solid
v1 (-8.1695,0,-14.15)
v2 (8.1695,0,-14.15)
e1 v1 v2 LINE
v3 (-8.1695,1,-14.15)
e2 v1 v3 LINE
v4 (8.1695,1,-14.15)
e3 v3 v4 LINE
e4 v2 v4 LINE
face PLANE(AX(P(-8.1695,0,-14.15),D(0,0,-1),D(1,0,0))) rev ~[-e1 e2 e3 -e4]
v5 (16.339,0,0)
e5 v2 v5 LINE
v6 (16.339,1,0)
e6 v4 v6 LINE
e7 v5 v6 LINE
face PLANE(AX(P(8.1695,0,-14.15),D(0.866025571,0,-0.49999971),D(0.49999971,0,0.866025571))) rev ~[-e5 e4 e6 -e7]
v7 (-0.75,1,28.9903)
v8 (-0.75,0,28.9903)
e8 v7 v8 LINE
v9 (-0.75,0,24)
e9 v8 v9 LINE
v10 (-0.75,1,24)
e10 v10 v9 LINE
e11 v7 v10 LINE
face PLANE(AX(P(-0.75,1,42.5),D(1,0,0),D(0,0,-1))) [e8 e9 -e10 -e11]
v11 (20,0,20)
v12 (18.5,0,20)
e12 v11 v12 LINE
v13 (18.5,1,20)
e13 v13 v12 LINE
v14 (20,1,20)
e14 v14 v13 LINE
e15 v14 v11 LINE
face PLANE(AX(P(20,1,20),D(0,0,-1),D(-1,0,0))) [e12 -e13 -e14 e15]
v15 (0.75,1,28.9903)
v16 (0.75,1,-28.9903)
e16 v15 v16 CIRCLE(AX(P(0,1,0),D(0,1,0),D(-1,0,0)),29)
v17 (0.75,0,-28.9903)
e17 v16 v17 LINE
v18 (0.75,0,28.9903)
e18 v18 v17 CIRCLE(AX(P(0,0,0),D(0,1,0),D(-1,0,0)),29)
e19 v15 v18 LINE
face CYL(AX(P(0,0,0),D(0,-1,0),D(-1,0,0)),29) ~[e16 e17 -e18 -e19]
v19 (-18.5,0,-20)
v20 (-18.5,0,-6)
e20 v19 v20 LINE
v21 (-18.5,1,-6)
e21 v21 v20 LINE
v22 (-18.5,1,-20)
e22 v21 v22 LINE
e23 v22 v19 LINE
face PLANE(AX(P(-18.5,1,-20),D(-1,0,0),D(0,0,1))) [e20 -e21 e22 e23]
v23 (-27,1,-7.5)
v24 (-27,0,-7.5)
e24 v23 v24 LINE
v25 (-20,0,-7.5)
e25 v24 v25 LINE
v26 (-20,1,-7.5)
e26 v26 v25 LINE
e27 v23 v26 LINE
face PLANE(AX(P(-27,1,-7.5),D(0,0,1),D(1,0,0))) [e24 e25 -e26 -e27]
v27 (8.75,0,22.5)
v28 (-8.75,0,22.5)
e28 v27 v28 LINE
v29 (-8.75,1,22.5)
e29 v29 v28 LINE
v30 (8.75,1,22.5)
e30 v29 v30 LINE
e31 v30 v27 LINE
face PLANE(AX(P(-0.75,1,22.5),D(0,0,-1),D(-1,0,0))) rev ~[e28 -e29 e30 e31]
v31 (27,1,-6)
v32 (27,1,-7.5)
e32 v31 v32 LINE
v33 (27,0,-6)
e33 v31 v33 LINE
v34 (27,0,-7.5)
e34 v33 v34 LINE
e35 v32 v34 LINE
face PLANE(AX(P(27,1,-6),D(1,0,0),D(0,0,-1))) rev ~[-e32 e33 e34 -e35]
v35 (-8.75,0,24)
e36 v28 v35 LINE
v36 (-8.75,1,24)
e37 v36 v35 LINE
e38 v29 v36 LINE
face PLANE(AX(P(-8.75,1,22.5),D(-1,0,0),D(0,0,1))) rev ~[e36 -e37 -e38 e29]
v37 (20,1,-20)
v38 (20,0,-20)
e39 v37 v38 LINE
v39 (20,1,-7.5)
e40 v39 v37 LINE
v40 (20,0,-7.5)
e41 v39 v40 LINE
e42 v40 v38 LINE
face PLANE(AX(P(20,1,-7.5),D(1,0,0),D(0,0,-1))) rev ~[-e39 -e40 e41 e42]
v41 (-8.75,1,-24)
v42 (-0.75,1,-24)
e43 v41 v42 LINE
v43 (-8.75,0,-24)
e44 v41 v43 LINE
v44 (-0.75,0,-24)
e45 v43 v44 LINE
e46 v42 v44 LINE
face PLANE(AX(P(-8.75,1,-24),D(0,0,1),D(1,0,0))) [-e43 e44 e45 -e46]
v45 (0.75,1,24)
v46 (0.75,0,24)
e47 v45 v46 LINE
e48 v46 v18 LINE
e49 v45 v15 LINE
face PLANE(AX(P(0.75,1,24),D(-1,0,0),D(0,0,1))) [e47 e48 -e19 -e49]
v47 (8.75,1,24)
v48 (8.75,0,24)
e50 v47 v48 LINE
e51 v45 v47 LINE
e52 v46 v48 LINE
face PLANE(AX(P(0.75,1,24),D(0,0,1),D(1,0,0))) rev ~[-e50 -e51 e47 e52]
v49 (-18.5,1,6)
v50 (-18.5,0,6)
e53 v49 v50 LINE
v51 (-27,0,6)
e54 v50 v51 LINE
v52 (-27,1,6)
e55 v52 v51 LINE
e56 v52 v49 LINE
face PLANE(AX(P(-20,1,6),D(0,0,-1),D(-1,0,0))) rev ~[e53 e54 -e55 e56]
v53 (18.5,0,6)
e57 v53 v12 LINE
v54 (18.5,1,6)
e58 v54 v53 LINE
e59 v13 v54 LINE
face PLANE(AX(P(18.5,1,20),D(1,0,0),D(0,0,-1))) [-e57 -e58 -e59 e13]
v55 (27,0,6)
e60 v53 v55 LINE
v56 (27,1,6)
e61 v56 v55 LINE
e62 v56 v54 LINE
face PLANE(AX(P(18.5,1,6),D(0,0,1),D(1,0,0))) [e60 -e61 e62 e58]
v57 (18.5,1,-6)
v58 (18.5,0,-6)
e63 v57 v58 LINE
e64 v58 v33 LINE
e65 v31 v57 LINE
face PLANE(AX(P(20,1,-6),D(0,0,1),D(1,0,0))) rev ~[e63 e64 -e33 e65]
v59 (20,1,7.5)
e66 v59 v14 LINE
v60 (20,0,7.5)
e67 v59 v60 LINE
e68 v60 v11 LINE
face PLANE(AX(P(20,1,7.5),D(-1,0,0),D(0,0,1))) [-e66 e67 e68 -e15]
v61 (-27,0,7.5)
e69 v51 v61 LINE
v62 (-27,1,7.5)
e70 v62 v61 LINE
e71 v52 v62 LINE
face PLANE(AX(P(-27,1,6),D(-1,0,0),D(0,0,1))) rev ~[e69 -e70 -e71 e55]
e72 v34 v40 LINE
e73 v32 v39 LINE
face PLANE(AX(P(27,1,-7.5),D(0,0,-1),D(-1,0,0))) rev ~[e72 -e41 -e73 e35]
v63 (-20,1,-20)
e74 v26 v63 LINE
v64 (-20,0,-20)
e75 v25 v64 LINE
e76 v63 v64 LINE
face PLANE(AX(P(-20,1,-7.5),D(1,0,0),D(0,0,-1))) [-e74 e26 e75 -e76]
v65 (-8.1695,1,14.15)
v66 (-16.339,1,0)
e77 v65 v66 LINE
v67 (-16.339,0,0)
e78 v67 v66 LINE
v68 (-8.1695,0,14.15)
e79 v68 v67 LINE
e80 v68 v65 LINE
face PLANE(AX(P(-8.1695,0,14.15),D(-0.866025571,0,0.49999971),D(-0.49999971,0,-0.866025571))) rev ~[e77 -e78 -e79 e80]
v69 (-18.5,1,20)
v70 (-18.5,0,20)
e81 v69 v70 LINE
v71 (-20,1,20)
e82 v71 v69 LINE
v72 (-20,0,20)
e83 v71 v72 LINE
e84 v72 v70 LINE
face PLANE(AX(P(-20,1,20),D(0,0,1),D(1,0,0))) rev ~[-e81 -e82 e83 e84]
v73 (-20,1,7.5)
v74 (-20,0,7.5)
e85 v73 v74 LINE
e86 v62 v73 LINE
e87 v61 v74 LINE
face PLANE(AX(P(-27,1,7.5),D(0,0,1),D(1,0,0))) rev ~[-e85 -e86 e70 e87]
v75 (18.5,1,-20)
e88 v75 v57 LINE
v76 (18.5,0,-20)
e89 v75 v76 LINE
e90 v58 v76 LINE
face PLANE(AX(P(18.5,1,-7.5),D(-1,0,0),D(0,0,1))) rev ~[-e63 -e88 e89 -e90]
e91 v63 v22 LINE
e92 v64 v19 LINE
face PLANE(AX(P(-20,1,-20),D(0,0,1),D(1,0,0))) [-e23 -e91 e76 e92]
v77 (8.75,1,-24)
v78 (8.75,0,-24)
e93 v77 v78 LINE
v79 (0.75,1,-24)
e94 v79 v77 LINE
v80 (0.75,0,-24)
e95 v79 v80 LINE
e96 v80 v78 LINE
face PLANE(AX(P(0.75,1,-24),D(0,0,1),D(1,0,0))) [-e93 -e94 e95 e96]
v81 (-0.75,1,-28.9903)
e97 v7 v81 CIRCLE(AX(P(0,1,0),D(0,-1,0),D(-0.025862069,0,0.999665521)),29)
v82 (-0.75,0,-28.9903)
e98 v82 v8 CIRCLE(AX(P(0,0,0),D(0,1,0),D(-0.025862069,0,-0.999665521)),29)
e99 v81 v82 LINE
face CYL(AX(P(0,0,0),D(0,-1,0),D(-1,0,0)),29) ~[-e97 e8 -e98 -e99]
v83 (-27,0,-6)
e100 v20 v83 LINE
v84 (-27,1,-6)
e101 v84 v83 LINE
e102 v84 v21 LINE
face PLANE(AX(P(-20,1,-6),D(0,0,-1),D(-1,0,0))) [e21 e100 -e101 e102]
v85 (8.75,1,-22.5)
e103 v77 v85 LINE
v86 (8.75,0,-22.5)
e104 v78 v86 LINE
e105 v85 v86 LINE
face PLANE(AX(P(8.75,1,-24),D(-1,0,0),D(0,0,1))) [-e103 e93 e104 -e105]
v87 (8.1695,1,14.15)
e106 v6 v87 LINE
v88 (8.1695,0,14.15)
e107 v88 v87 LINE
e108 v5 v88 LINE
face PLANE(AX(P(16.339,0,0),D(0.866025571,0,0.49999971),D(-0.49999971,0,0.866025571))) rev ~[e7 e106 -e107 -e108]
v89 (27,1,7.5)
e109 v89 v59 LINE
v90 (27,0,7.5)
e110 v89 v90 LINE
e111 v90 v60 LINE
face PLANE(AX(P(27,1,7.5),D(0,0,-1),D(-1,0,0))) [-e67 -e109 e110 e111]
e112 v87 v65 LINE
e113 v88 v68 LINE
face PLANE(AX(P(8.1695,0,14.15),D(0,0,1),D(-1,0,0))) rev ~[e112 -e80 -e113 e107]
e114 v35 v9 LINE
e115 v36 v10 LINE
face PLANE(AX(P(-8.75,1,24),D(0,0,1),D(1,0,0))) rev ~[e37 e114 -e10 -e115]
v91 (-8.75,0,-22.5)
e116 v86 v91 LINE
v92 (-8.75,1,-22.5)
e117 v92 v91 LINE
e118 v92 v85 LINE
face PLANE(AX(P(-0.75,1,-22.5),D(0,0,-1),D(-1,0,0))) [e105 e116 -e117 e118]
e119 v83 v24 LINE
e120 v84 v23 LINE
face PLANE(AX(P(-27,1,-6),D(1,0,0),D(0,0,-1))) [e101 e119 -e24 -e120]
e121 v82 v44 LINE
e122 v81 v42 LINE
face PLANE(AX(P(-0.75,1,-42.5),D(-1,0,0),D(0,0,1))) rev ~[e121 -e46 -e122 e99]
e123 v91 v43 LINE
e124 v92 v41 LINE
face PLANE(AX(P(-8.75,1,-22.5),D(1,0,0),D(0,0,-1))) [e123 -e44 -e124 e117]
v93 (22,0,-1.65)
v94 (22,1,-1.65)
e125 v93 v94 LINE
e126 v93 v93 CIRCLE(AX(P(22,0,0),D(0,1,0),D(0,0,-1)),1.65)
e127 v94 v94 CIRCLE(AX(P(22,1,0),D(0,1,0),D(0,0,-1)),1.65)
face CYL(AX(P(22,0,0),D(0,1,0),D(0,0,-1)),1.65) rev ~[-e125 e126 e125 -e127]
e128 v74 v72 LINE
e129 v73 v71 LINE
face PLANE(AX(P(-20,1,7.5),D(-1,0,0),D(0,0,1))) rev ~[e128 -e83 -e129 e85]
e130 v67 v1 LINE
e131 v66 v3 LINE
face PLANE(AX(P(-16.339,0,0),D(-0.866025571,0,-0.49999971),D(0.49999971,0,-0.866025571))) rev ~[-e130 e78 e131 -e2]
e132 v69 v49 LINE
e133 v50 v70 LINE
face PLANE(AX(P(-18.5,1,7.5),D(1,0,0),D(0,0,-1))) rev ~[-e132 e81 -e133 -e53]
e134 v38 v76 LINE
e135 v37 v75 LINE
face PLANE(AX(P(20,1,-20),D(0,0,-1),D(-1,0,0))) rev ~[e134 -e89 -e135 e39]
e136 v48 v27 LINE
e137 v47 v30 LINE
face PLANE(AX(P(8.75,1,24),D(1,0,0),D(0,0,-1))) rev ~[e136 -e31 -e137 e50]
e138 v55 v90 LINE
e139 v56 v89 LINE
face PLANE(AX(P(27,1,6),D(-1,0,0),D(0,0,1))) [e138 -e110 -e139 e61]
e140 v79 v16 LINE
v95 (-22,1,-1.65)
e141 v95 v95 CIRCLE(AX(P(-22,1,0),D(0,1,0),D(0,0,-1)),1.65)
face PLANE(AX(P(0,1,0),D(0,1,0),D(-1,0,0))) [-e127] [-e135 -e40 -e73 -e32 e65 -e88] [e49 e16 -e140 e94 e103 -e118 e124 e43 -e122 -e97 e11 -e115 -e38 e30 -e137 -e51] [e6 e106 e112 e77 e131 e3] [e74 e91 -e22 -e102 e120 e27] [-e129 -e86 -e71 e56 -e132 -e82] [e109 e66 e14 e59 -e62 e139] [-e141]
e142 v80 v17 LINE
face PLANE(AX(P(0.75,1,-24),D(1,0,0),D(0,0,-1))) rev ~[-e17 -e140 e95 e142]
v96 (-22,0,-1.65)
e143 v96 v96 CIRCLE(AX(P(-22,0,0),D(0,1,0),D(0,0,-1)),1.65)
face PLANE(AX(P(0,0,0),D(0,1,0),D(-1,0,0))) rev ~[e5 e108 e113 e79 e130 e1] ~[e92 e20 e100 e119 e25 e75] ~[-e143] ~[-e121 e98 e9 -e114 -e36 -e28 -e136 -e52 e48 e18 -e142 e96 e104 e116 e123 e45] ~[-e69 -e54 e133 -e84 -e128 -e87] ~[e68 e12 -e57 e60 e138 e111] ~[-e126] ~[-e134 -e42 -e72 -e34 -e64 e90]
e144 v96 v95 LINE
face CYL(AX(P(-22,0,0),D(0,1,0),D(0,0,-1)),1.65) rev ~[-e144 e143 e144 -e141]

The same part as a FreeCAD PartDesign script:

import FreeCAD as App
import Part
import Sketcher

V = App.Vector
Q = App.Units.Quantity

doc = App.newDocument("Part")
body = doc.addObject("PartDesign::Body", "Body")

sketch1 = body.newObject("Sketcher::SketchObject", "Sketch")
sketch1.AttachmentSupport = (doc.getObject("XZ_Plane"), [""])
sketch1.MapMode = "FlatFace"
sketch1.addGeometry([
    Part.Circle(V(0, 0, 0), V(0, 0, 1), 29),
    Part.LineSegment(V(-8, -14, 0), V(8, -14, 0)),
    Part.LineSegment(V(8, -14, 0), V(16, 0, 0)),
    Part.LineSegment(V(16, 0, 0), V(8, 14, 0)),
    Part.LineSegment(V(8, 14, 0), V(-8, 14, 0)),
    Part.LineSegment(V(-8, 14, 0), V(-16, 0, 0)),
    Part.LineSegment(V(-16, 0, 0), V(-8, -14, 0)),
], False)
sketch1.addConstraint([
    Sketcher.Constraint("Coincident", 1, 2, 2, 1),
    Sketcher.Constraint("Coincident", 2, 2, 3, 1),
    Sketcher.Constraint("Coincident", 3, 2, 4, 1),
    Sketcher.Constraint("Coincident", 4, 2, 5, 1),
    Sketcher.Constraint("Coincident", 5, 2, 6, 1),
    Sketcher.Constraint("Coincident", 6, 2, 1, 1),
    Sketcher.Constraint("Horizontal", 1),
    Sketcher.Constraint("Horizontal", 4),
    Sketcher.Constraint("Coincident", 0, 3, -1, 1),
    Sketcher.Constraint("Symmetric", 1, 2, 4, 2, -1, 1),
    Sketcher.Constraint("Symmetric", 2, 2, 5, 2, -1, 1),
    Sketcher.Constraint("PointOnObject", 2, 2, -1),
    Sketcher.Constraint("Parallel", 3, 6),
    Sketcher.Constraint("Vertical", 1, 2, 3, 2),
    Sketcher.Constraint("Diameter", 0, Q("58 mm")),
    Sketcher.Constraint("DistanceY", 1, 2, 3, 2, Q("28.3 mm")),
    Sketcher.Constraint("Angle", 2, Q("60 deg")),
    Sketcher.Constraint("DistanceX", 1, 1, 1, 2, Q("16.339 mm")),
])
pad1 = body.newObject("PartDesign::Pad", "Pad")
pad1.Profile = sketch1
pad1.Length = 1
pad1.Reversed = True

sketch2 = body.newObject("Sketcher::SketchObject", "Sketch001")
sketch2.AttachmentSupport = (doc.getObject("XZ_Plane"), [""])
sketch2.MapMode = "FlatFace"
sketch2.addGeometry([
    Part.Circle(V(-22, 0, 0), V(0, 0, 1), 1.6),
    Part.Circle(V(22, 0, 0), V(0, 0, 1), 1.6),
], False)
sketch2.addConstraint([
    Sketcher.Constraint("Equal", 0, 1),
    Sketcher.Constraint("Symmetric", 0, 3, 1, 3, -1, 1),
    Sketcher.Constraint("PointOnObject", 0, 3, -1),
    Sketcher.Constraint("Diameter", 0, Q("3.3 mm")),
    Sketcher.Constraint("DistanceX", 0, 3, -1, 1, Q("22 mm")),
])
doc.recompute()
hole = body.newObject("PartDesign::Hole", "Hole")
hole.Profile = sketch2
hole.ThreadType = "None"
hole.Diameter = 3.3
hole.DepthType = "ThroughAll"

sketch3 = body.newObject("Sketcher::SketchObject", "Sketch002")
sketch3.AttachmentSupport = (doc.getObject("XZ_Plane"), [""])
sketch3.MapMode = "FlatFace"
sketch3.AttachmentOffset = App.Placement(V(0, 0, -1), App.Rotation())
sketch3.addGeometry([
    Part.LineSegment(V(-0.8, -24, 0), V(-8.8, -24, 0)),
    Part.LineSegment(V(-8.8, -24, 0), V(-8.8, -22.5, 0)),
    Part.LineSegment(V(-8.8, -22.5, 0), V(8.8, -22.5, 0)),
    Part.LineSegment(V(8.8, -22.5, 0), V(8.8, -24, 0)),
    Part.LineSegment(V(8.8, -24, 0), V(0.8, -24, 0)),
    Part.LineSegment(V(0.8, -24, 0), V(0.8, -42.5, 0)),
    Part.LineSegment(V(0.8, -42.5, 0), V(-0.8, -42.5, 0)),
    Part.LineSegment(V(-0.8, -42.5, 0), V(-0.8, -24, 0)),
    Part.LineSegment(V(-8.8, 22.5, 0), V(-8.8, 24, 0)),
    Part.LineSegment(V(-8.8, 24, 0), V(-0.8, 24, 0)),
    Part.LineSegment(V(-0.8, 24, 0), V(-0.8, 42.5, 0)),
    Part.LineSegment(V(-0.8, 42.5, 0), V(0.8, 42.5, 0)),
    Part.LineSegment(V(0.8, 42.5, 0), V(0.8, 24, 0)),
    Part.LineSegment(V(0.8, 24, 0), V(8.8, 24, 0)),
    Part.LineSegment(V(8.8, 24, 0), V(8.8, 22.5, 0)),
    Part.LineSegment(V(8.8, 22.5, 0), V(-8.8, 22.5, 0)),
    Part.LineSegment(V(-20, -7.5, 0), V(-27, -7.5, 0)),
    Part.LineSegment(V(-27, -7.5, 0), V(-27, -6, 0)),
    Part.LineSegment(V(-27, -6, 0), V(-18.5, -6, 0)),
    Part.LineSegment(V(-18.5, -6, 0), V(-18.5, -20, 0)),
    Part.LineSegment(V(-18.5, -20, 0), V(-20, -20, 0)),
    Part.LineSegment(V(-20, -20, 0), V(-20, -7.5, 0)),
    Part.LineSegment(V(27, -6, 0), V(27, -7.5, 0)),
    Part.LineSegment(V(27, -7.5, 0), V(20, -7.5, 0)),
    Part.LineSegment(V(20, -7.5, 0), V(20, -20, 0)),
    Part.LineSegment(V(20, -20, 0), V(18.5, -20, 0)),
    Part.LineSegment(V(18.5, -20, 0), V(18.5, -6, 0)),
    Part.LineSegment(V(18.5, -6, 0), V(27, -6, 0)),
    Part.LineSegment(V(-27, 6, 0), V(-27, 7.5, 0)),
    Part.LineSegment(V(-27, 7.5, 0), V(-20, 7.5, 0)),
    Part.LineSegment(V(-20, 7.5, 0), V(-20, 20, 0)),
    Part.LineSegment(V(-20, 20, 0), V(-18.5, 20, 0)),
    Part.LineSegment(V(-18.5, 20, 0), V(-18.5, 6, 0)),
    Part.LineSegment(V(-18.5, 6, 0), V(-27, 6, 0)),
    Part.LineSegment(V(18.5, 20, 0), V(20, 20, 0)),
    Part.LineSegment(V(20, 20, 0), V(20, 7.5, 0)),
    Part.LineSegment(V(20, 7.5, 0), V(27, 7.5, 0)),
    Part.LineSegment(V(27, 7.5, 0), V(27, 6, 0)),
    Part.LineSegment(V(27, 6, 0), V(18.5, 6, 0)),
    Part.LineSegment(V(18.5, 6, 0), V(18.5, 20, 0)),
], False)
sketch3.addConstraint([
    Sketcher.Constraint("Coincident", 0, 2, 1, 1),
    Sketcher.Constraint("Coincident", 1, 2, 2, 1),
    Sketcher.Constraint("Coincident", 2, 2, 3, 1),
    Sketcher.Constraint("Coincident", 3, 2, 4, 1),
    Sketcher.Constraint("Coincident", 4, 2, 5, 1),
    Sketcher.Constraint("Coincident", 5, 2, 6, 1),
    Sketcher.Constraint("Coincident", 6, 2, 7, 1),
    Sketcher.Constraint("Coincident", 7, 2, 0, 1),
    Sketcher.Constraint("Coincident", 8, 2, 9, 1),
    Sketcher.Constraint("Coincident", 9, 2, 10, 1),
    Sketcher.Constraint("Coincident", 10, 2, 11, 1),
    Sketcher.Constraint("Coincident", 11, 2, 12, 1),
    Sketcher.Constraint("Coincident", 12, 2, 13, 1),
    Sketcher.Constraint("Coincident", 13, 2, 14, 1),
    Sketcher.Constraint("Coincident", 14, 2, 15, 1),
    Sketcher.Constraint("Coincident", 15, 2, 8, 1),
    Sketcher.Constraint("Coincident", 16, 2, 17, 1),
    Sketcher.Constraint("Coincident", 17, 2, 18, 1),
    Sketcher.Constraint("Coincident", 18, 2, 19, 1),
    Sketcher.Constraint("Coincident", 19, 2, 20, 1),
    Sketcher.Constraint("Coincident", 20, 2, 21, 1),
    Sketcher.Constraint("Coincident", 21, 2, 16, 1),
    Sketcher.Constraint("Coincident", 22, 2, 23, 1),
    Sketcher.Constraint("Coincident", 23, 2, 24, 1),
    Sketcher.Constraint("Coincident", 24, 2, 25, 1),
    Sketcher.Constraint("Coincident", 25, 2, 26, 1),
    Sketcher.Constraint("Coincident", 26, 2, 27, 1),
    Sketcher.Constraint("Coincident", 27, 2, 22, 1),
    Sketcher.Constraint("Coincident", 28, 2, 29, 1),
    Sketcher.Constraint("Coincident", 29, 2, 30, 1),
    Sketcher.Constraint("Coincident", 30, 2, 31, 1),
    Sketcher.Constraint("Coincident", 31, 2, 32, 1),
    Sketcher.Constraint("Coincident", 32, 2, 33, 1),
    Sketcher.Constraint("Coincident", 33, 2, 28, 1),
    Sketcher.Constraint("Coincident", 34, 2, 35, 1),
    Sketcher.Constraint("Coincident", 35, 2, 36, 1),
    Sketcher.Constraint("Coincident", 36, 2, 37, 1),
    Sketcher.Constraint("Coincident", 37, 2, 38, 1),
    Sketcher.Constraint("Coincident", 38, 2, 39, 1),
    Sketcher.Constraint("Coincident", 39, 2, 34, 1),
    Sketcher.Constraint("Horizontal", 0),
    Sketcher.Constraint("Vertical", 1),
    Sketcher.Constraint("Horizontal", 2),
    Sketcher.Constraint("Vertical", 3),
    Sketcher.Constraint("Horizontal", 4),
    Sketcher.Constraint("Vertical", 5),
    Sketcher.Constraint("Horizontal", 6),
    Sketcher.Constraint("Vertical", 7),
    Sketcher.Constraint("Vertical", 8),
    Sketcher.Constraint("Horizontal", 9),
    Sketcher.Constraint("Vertical", 10),
    Sketcher.Constraint("Horizontal", 11),
    Sketcher.Constraint("Vertical", 12),
    Sketcher.Constraint("Horizontal", 13),
    Sketcher.Constraint("Vertical", 14),
    Sketcher.Constraint("Horizontal", 15),
    Sketcher.Constraint("Horizontal", 16),
    Sketcher.Constraint("Vertical", 17),
    Sketcher.Constraint("Horizontal", 18),
    Sketcher.Constraint("Vertical", 19),
    Sketcher.Constraint("Horizontal", 20),
    Sketcher.Constraint("Vertical", 21),
    Sketcher.Constraint("Vertical", 22),
    Sketcher.Constraint("Horizontal", 23),
    Sketcher.Constraint("Vertical", 24),
    Sketcher.Constraint("Horizontal", 25),
    Sketcher.Constraint("Vertical", 26),
    Sketcher.Constraint("Horizontal", 27),
    Sketcher.Constraint("Vertical", 28),
    Sketcher.Constraint("Horizontal", 29),
    Sketcher.Constraint("Vertical", 30),
    Sketcher.Constraint("Horizontal", 31),
    Sketcher.Constraint("Vertical", 32),
    Sketcher.Constraint("Horizontal", 33),
    Sketcher.Constraint("Horizontal", 34),
    Sketcher.Constraint("Vertical", 35),
    Sketcher.Constraint("Horizontal", 36),
    Sketcher.Constraint("Vertical", 37),
    Sketcher.Constraint("Horizontal", 38),
    Sketcher.Constraint("Vertical", 39),
    Sketcher.Constraint("Symmetric", 3, 2, 8, 2, -1, 1),
    Sketcher.Constraint("Symmetric", 5, 2, 10, 2, -1, 1),
    Sketcher.Constraint("Symmetric", 7, 2, 12, 2, -1, 1),
    Sketcher.Constraint("Symmetric", 1, 2, 14, 2, -1, 1),
    Sketcher.Constraint("Symmetric", 22, 2, 28, 2, -1, 1),
    Sketcher.Constraint("Symmetric", 24, 2, 30, 2, -1, 1),
    Sketcher.Constraint("Symmetric", 26, 2, 32, 2, -1, 1),
    Sketcher.Constraint("Symmetric", 20, 2, 34, 2, -1, 1),
    Sketcher.Constraint("Symmetric", 16, 2, 36, 2, -1, 1),
    Sketcher.Constraint("Symmetric", 18, 2, 38, 2, -1, 1),
    Sketcher.Constraint("Symmetric", 0, 2, 3, 2, -2),
    Sketcher.Constraint("Symmetric", 16, 2, 22, 2, -2),
    Sketcher.Constraint("Symmetric", 20, 2, 24, 2, -2),
    Sketcher.Constraint("Symmetric", 18, 2, 26, 2, -2),
    Sketcher.Constraint("Vertical", 7, 2, 9, 2),
    Sketcher.Constraint("Equal", 11, 20),
    Sketcher.Constraint("Equal", 34, 1),
    Sketcher.Constraint("Equal", 14, 17),
    Sketcher.Constraint("DistanceY", 19, 2, 19, 1, Q("14 mm")),
    Sketcher.Constraint("DistanceX", 2, 1, 2, 2, Q("17.5 mm")),
    Sketcher.Constraint("DistanceX", 6, 2, 6, 1, Q("1.5 mm")),
    Sketcher.Constraint("DistanceX", 18, 1, 18, 2, Q("8.5 mm")),
    Sketcher.Constraint("DistanceY", 5, 2, 5, 1, Q("18.5 mm")),
    Sketcher.Constraint("DistanceY", 17, 2, -1, 1, Q("6 mm")),
    Sketcher.Constraint("DistanceX", 20, 2, -1, 1, Q("20 mm")),
    Sketcher.Constraint("DistanceY", 1, 2, -1, 1, Q("22.5 mm")),
])
pocket1 = body.newObject("PartDesign::Pocket", "Pocket")
pocket1.Profile = sketch3
pocket1.Length = 1
pocket1.Reversed = True

doc.recompute()
